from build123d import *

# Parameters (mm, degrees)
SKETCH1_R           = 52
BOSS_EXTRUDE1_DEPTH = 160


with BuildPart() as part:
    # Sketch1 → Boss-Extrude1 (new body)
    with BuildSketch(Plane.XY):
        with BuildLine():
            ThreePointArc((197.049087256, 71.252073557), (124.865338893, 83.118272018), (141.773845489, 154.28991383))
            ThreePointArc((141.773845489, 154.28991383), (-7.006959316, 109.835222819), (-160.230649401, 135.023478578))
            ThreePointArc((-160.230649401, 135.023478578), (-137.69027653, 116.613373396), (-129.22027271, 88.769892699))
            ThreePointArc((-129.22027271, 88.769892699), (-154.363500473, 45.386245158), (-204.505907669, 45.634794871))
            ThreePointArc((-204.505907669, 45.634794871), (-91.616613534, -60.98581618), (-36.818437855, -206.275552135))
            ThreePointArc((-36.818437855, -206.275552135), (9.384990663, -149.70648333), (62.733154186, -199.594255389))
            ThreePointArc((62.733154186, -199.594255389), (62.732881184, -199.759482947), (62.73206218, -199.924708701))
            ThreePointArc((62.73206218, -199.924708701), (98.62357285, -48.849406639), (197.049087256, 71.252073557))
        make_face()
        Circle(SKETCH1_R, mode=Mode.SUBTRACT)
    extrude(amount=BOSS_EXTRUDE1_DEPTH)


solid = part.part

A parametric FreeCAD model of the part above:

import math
import FreeCAD as App
import Part
import Sketcher
from FreeCAD import Vector
Q = App.Units.Quantity

doc = App.newDocument("Part")
body = doc.addObject("PartDesign::Body", "Body")

# Sketch on XY plane
sketch1 = doc.addObject("Sketcher::SketchObject", "Sketch")
body.addObject(sketch1)
sketch1.AttachmentSupport = (doc.XY_Plane, [""])
sketch1.MapMode = "FlatFace"
sketch1.addGeometry([
    Part.ArcOfCircle(Part.Circle(Vector(166.49, 110.82, 0), Vector(0, 0, 1), 50), math.radians(120), math.radians(308)),  # 0
    Part.ArcOfCircle(Part.Circle(Vector(-29, 454.65, 0), Vector(0, 0, 1), 345.52), math.radians(-112), math.radians(-60)),  # 1
    Part.ArcOfCircle(Part.Circle(Vector(-179.22, 88.77, 0), Vector(0, 0, 1), 50), math.radians(0), math.radians(68)),  # 2
    Part.ArcOfCircle(Part.Circle(Vector(-179.22, 88.77, 0), Vector(0, 0, 1), 50), math.radians(-120), math.radians(0)),  # 3
    Part.ArcOfCircle(Part.Circle(Vector(-379.24, -252.45, 0), Vector(0, 0, 1), 345.52), math.radians(8), math.radians(60)),  # 4
    Part.ArcOfCircle(Part.Circle(Vector(12.73, -199.59, 0), Vector(0, 0, 1), 50), math.radians(0), math.radians(188)),  # 5
    Part.ArcOfCircle(Part.Circle(Vector(12.73, -199.59, 0), Vector(0, 0, 1), 50), math.radians(-0.38), math.radians(0)),  # 6
    Part.ArcOfCircle(Part.Circle(Vector(408.24, -202.21, 0), Vector(0, 0, 1), 345.52), math.radians(128), math.radians(180)),  # 7
    Part.Circle(Vector(0, 0, 0), Vector(0, 0, 1), 52),  # 8
], False)
sketch1.addConstraint([
    Sketcher.Constraint("Tangent", 0, 1, 1, 2),
    Sketcher.Constraint("Tangent", 1, 1, 2, 2),
    Sketcher.Constraint("Tangent", 2, 1, 3, 2),
    Sketcher.Constraint("Tangent", 3, 1, 4, 2),
    Sketcher.Constraint("Tangent", 4, 1, 5, 2),
    Sketcher.Constraint("Tangent", 5, 1, 6, 2),
    Sketcher.Constraint("Tangent", 6, 1, 7, 2),
    Sketcher.Constraint("Tangent", 7, 1, 0, 2),
    Sketcher.Constraint("Coincident", 8, 3, -1, 1),
    Sketcher.Constraint("Equal", 0, 2),
    Sketcher.Constraint("Equal", 2, 3),
    Sketcher.Constraint("Equal", 1, 4),
    Sketcher.Constraint("Equal", 3, 5),
    Sketcher.Constraint("Equal", 4, 7),
    Sketcher.Constraint("Horizontal", 3, 3, 2, 1),
    Sketcher.Constraint("Horizontal", 6, 3, 5, 1),
    Sketcher.Constraint("Diameter", 8, Q("104 mm")),
    Sketcher.Constraint("Radius", 0, Q("50 mm")),
    Sketcher.Constraint("Radius", 1, Q("345.52 mm")),
    Sketcher.Constraint("Radius", 6, Q("49.999948 mm")),
    Sketcher.Constraint("DistanceX", 1, 3, 0, 1, Q("170.778602 mm")),
    Sketcher.Constraint("DistanceX", -1, 1, 0, 3, Q("166.487119 mm")),
    Sketcher.Constraint("DistanceY", -1, 1, 1, 3, Q("454.654258 mm")),
    Sketcher.Constraint("DistanceX", 4, 3, -1, 1, Q("379.239759 mm")),
    Sketcher.Constraint("DistanceY", 6, 1, -1, 1, Q("199.924709 mm")),
    Sketcher.Constraint("DistanceX", 2, 3, 0, 3, Q("345.707391 mm")),
])
pad1 = doc.addObject("PartDesign::Pad", "Pad")
body.addObject(pad1)
pad1.Profile = sketch1
pad1.Length = 160

doc.recompute()
